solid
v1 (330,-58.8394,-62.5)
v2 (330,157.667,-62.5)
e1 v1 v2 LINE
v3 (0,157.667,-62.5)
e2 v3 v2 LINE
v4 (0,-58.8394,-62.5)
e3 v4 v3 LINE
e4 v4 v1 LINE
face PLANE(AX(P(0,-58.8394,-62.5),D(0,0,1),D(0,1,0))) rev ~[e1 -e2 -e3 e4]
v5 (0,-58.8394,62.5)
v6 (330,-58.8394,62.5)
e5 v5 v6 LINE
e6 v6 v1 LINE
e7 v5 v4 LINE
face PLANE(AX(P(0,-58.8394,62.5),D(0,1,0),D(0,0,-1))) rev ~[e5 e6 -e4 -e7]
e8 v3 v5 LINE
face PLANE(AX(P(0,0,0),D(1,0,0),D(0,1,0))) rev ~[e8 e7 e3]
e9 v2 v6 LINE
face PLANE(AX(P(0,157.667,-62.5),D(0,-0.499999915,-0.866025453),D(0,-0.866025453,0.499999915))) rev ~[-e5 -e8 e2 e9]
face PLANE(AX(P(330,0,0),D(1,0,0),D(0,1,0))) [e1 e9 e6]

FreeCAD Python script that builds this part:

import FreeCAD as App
import Part
import Sketcher
Q = App.Units.Quantity


def add_polygon(sketch, points):
    """Adds a closed chain of lines whose ends are joined by coincident constraints."""
    first, n = sketch.GeometryCount, len(points)
    for a, b in zip(points, points[1:] + points[:1]):
        sketch.addGeometry(Part.LineSegment(App.Vector(*a, 0), App.Vector(*b, 0)), False)
    for i in range(n):
        sketch.addConstraint(Sketcher.Constraint("Coincident", first + i, 2, first + (i + 1) % n, 1))

doc = App.newDocument("Part")
params = doc.addObject("Spreadsheet::Sheet", "Params")
for row, (alias, value) in enumerate([
    ("sketch1_height", "125 mm"),
    ("sketch1_length", "250 mm"),
    ("pad1_length", "330 mm"),
], start=1):
    params.set(f"A{row}", alias)
    params.set(f"B{row}", "=" + value)
    params.setAlias(f"B{row}", alias)

body = doc.addObject("PartDesign::Body", "Body")

# Sketch on YZ plane
sketch1 = doc.addObject("Sketcher::SketchObject", "Sketch")
body.addObject(sketch1)
sketch1.AttachmentSupport = (doc.YZ_Plane, [""])
sketch1.MapMode = "FlatFace"
add_polygon(sketch1, [(-58.8394, -62.5), (157.667, -62.5), (-58.8394, 62.5)])  # lines 0-2
sketch1.addConstraint(Sketcher.Constraint("Horizontal", 0))
sketch1.addConstraint(Sketcher.Constraint("Vertical", 2))
sketch1.addConstraint(Sketcher.Constraint("DistanceY", 2, 2, 2, 1, Q("125 mm")))
sketch1.addConstraint(Sketcher.Constraint("Distance", 1, Q("250 mm")))
sketch1.addConstraint(Sketcher.Constraint("DistanceY", 0, 2, -1, 1, Q("62.5 mm")))
sketch1.addConstraint(Sketcher.Constraint("DistanceX", -1, 1, 0, 2, Q("157.667 mm")))
sketch1.setExpression("Constraints[5]", "Params.sketch1_height")
sketch1.setExpression("Constraints[6]", "Params.sketch1_length")
pad1 = doc.addObject("PartDesign::Pad", "Pad")
body.addObject(pad1)
pad1.Profile = sketch1
pad1.setExpression("Length", "Params.pad1_length")

doc.recompute()
